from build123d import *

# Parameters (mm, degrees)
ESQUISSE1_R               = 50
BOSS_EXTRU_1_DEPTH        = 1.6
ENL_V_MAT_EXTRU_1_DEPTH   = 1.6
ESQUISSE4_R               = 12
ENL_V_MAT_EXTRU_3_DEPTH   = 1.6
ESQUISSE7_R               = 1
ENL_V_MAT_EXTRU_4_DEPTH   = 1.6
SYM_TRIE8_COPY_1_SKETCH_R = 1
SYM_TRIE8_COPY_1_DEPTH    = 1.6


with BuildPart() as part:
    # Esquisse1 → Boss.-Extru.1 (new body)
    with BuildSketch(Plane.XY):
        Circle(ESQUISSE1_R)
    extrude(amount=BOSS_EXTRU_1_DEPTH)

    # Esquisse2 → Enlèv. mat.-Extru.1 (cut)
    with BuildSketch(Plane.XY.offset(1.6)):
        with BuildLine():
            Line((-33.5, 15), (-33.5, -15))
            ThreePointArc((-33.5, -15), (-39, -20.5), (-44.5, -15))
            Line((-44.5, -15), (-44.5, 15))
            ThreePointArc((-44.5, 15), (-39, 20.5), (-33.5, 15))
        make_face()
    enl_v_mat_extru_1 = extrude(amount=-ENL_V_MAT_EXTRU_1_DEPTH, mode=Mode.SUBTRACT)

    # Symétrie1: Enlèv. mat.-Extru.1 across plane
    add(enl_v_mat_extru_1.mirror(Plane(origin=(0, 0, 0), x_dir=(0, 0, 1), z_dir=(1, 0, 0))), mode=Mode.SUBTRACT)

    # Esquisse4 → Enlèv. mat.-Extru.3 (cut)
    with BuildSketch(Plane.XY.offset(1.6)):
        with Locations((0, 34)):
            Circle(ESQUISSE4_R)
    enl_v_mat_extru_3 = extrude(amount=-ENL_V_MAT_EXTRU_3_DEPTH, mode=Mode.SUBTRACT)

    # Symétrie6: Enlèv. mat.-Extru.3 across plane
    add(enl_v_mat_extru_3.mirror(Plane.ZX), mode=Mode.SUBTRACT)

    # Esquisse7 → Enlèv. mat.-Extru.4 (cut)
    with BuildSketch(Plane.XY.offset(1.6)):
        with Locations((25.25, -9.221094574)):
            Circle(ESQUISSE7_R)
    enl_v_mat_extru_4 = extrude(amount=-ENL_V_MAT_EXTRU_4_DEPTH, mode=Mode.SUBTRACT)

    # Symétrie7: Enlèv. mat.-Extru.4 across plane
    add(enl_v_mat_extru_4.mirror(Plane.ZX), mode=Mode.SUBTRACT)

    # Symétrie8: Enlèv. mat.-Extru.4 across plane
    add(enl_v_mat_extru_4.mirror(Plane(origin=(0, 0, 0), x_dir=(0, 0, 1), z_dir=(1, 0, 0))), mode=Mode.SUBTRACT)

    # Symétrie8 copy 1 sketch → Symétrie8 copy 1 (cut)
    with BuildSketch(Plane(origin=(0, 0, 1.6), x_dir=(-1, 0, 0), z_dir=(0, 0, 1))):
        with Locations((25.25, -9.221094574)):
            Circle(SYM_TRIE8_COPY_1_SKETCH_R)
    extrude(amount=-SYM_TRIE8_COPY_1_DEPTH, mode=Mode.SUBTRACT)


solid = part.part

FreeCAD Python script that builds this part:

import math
import FreeCAD as App
import Part
import Sketcher
Q = App.Units.Quantity

doc = App.newDocument("Part")
body = doc.addObject("PartDesign::Body", "Body")

sketch1 = body.newObject("Sketcher::SketchObject", "Sketch")
sketch1.AttachmentSupport = (doc.getObject("XY_Plane"), [""])
sketch1.MapMode = "FlatFace"
sketch1.addGeometry(Part.Circle(App.Vector(0, 0, 0), App.Vector(0, 0, 1), 50), False)
sketch1.addConstraint(Sketcher.Constraint("Coincident", 0, 3, -1, 1))
sketch1.addConstraint(Sketcher.Constraint("Diameter", 0, Q("100 mm")))
pad1 = body.newObject("PartDesign::Pad", "Pad")
pad1.Profile = sketch1
pad1.Length = 1.6

sketch2 = body.newObject("Sketcher::SketchObject", "Sketch001")
sketch2.AttachmentSupport = (doc.getObject("XY_Plane"), [""])
sketch2.MapMode = "FlatFace"
sketch2.AttachmentOffset = App.Placement(App.Vector(0, 0, 1.6), App.Rotation())
sketch2.addGeometry(Part.LineSegment(App.Vector(-33.5, -15, 0), App.Vector(-33.5, 15, 0)), False)
sketch2.addGeometry(Part.ArcOfCircle(Part.Circle(App.Vector(-39, 15, 0), App.Vector(0, 0, 1), 5.5), math.radians(0), math.radians(180)), False)
sketch2.addGeometry(Part.LineSegment(App.Vector(-44.5, 15, 0), App.Vector(-44.5, -15, 0)), False)
sketch2.addGeometry(Part.ArcOfCircle(Part.Circle(App.Vector(-39, -15, 0), App.Vector(0, 0, 1), 5.5), math.radians(180), math.radians(360)), False)
sketch2.addConstraint(Sketcher.Constraint("Tangent", 0, 2, 1, 1))
sketch2.addConstraint(Sketcher.Constraint("Tangent", 1, 2, 2, 1))
sketch2.addConstraint(Sketcher.Constraint("Tangent", 2, 2, 3, 1))
sketch2.addConstraint(Sketcher.Constraint("Tangent", 3, 2, 0, 1))
sketch2.addConstraint(Sketcher.Constraint("Vertical", 0))
sketch2.addConstraint(Sketcher.Constraint("Vertical", 2))
sketch2.addConstraint(Sketcher.Constraint("Radius", 1, Q("5.5 mm")))
sketch2.addConstraint(Sketcher.Constraint("DistanceY", 0, 1, 0, 2, Q("30 mm")))
sketch2.addConstraint(Sketcher.Constraint("DistanceX", 1, 3, -1, 1, Q("39 mm")))
sketch2.addConstraint(Sketcher.Constraint("DistanceY", -1, 1, 1, 3, Q("15 mm")))
pocket1 = body.newObject("PartDesign::Pocket", "Pocket")
pocket1.Profile = sketch2
pocket1.Length = 1.6
doc.recompute()

mirrored = body.newObject("PartDesign::Mirrored", "Mirrored")
mirrored.Originals = [pocket1]
mirrored.MirrorPlane = (doc.getObject("YZ_Plane"), [""])
body.Tip = mirrored

sketch3 = body.newObject("Sketcher::SketchObject", "Sketch002")
sketch3.AttachmentSupport = (doc.getObject("XY_Plane"), [""])
sketch3.MapMode = "FlatFace"
sketch3.AttachmentOffset = App.Placement(App.Vector(0, 0, 1.6), App.Rotation())
sketch3.addGeometry(Part.Circle(App.Vector(0, 34, 0), App.Vector(0, 0, 1), 12), False)
sketch3.addConstraint(Sketcher.Constraint("PointOnObject", 0, 3, -2))
sketch3.addConstraint(Sketcher.Constraint("Diameter", 0, Q("24 mm")))
sketch3.addConstraint(Sketcher.Constraint("DistanceY", -1, 1, 0, 3, Q("34 mm")))
pocket2 = body.newObject("PartDesign::Pocket", "Pocket001")
pocket2.Profile = sketch3
pocket2.Length = 1.6
doc.recompute()

mirrored2 = body.newObject("PartDesign::Mirrored", "Mirrored001")
mirrored2.Originals = [pocket2]
mirrored2.MirrorPlane = (doc.getObject("XZ_Plane"), [""])
body.Tip = mirrored2

sketch4 = body.newObject("Sketcher::SketchObject", "Sketch003")
sketch4.AttachmentSupport = (doc.getObject("XY_Plane"), [""])
sketch4.MapMode = "FlatFace"
sketch4.AttachmentOffset = App.Placement(App.Vector(0, 0, 1.6), App.Rotation())
sketch4.addGeometry(Part.Circle(App.Vector(25.25, -9.221095, 0), App.Vector(0, 0, 1), 1), False)
sketch4.addConstraint(Sketcher.Constraint("Diameter", 0, Q("2 mm")))
sketch4.addConstraint(Sketcher.Constraint("DistanceX", -1, 1, 0, 3, Q("25.25 mm")))
sketch4.addConstraint(Sketcher.Constraint("DistanceY", 0, 3, -1, 1, Q("9.221095 mm")))
pocket3 = body.newObject("PartDesign::Pocket", "Pocket002")
pocket3.Profile = sketch4
pocket3.Length = 1.6
doc.recompute()

mirrored3 = body.newObject("PartDesign::Mirrored", "Mirrored002")
mirrored3.Originals = [pocket3]
mirrored3.MirrorPlane = (doc.getObject("XZ_Plane"), [""])
body.Tip = mirrored3
doc.recompute()

mirrored4 = body.newObject("PartDesign::Mirrored", "Mirrored003")
mirrored4.Originals = [pocket3]
mirrored4.MirrorPlane = (doc.getObject("YZ_Plane"), [""])
body.Tip = mirrored4

sketch5 = body.newObject("Sketcher::SketchObject", "Sketch004")
sketch5.AttachmentSupport = (doc.getObject("XY_Plane"), [""])
sketch5.MapMode = "FlatFace"
sketch5.AttachmentOffset = App.Placement(App.Vector(0, 0, 1.6), App.Rotation())
sketch5.addGeometry(Part.Circle(App.Vector(-25.25, 9.221095, 0), App.Vector(0, 0, 1), 1), False)
sketch5.addConstraint(Sketcher.Constraint("Diameter", 0, Q("2 mm")))
sketch5.addConstraint(Sketcher.Constraint("DistanceX", 0, 3, -1, 1, Q("25.25 mm")))
sketch5.addConstraint(Sketcher.Constraint("DistanceY", -1, 1, 0, 3, Q("9.221095 mm")))
pocket4 = body.newObject("PartDesign::Pocket", "Pocket003")
pocket4.Profile = sketch5
pocket4.Length = 1.6

doc.recompute()
